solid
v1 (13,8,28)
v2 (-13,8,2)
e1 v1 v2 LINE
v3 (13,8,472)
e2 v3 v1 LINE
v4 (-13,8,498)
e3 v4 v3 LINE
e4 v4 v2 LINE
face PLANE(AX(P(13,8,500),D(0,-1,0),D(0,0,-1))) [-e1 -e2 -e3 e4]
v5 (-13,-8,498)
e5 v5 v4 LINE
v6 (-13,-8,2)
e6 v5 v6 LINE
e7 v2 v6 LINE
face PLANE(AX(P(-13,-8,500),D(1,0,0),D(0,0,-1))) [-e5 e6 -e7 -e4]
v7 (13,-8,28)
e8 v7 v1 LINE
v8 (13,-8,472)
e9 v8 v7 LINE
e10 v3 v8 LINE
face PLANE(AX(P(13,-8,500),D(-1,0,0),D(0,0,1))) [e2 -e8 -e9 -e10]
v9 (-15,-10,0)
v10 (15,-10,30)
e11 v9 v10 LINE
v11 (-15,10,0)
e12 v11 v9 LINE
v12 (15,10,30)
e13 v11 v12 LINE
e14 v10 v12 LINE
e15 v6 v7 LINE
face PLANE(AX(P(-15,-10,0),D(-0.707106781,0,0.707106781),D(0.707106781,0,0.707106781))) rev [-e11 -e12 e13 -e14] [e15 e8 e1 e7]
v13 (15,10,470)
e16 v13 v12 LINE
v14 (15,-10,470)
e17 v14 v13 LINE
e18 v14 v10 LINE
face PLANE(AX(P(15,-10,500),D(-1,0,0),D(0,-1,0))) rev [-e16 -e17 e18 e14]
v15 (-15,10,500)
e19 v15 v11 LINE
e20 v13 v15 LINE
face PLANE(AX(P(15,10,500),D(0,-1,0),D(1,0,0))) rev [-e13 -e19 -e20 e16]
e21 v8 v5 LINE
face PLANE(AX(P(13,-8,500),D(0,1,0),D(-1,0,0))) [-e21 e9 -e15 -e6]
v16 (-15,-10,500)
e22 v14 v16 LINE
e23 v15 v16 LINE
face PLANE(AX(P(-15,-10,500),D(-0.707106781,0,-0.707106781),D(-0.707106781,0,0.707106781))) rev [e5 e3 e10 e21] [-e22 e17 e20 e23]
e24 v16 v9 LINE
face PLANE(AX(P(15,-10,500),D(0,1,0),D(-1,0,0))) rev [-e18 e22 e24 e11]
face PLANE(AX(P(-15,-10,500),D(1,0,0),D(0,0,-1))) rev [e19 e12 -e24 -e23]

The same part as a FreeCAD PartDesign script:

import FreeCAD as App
import Part
import Sketcher

doc = App.newDocument("Part")
body = doc.addObject("PartDesign::Body", "Body")

sketch1 = doc.addObject("Sketcher::SketchObject", "Sketch")
body.addObject(sketch1)
sketch1.AttachmentSupport = (doc.XY_Plane, [""])
sketch1.MapMode = "FlatFace"
sketch1.addGeometry(Part.LineSegment(App.Vector(-15, 10, 0), App.Vector(-15, -10, 0)), False)
sketch1.addGeometry(Part.LineSegment(App.Vector(-15, -10, 0), App.Vector(15, -10, 0)), False)
sketch1.addGeometry(Part.LineSegment(App.Vector(15, -10, 0), App.Vector(15, 10, 0)), False)
sketch1.addGeometry(Part.LineSegment(App.Vector(15, 10, 0), App.Vector(-15, 10, 0)), False)
sketch1.addGeometry(Part.LineSegment(App.Vector(13, -8, 0), App.Vector(-13, -8, 0)), False)
sketch1.addGeometry(Part.LineSegment(App.Vector(-13, -8, 0), App.Vector(-13, 8, 0)), False)
sketch1.addGeometry(Part.LineSegment(App.Vector(-13, 8, 0), App.Vector(13, 8, 0)), False)
sketch1.addGeometry(Part.LineSegment(App.Vector(13, 8, 0), App.Vector(13, -8, 0)), False)
sketch1.addConstraint(Sketcher.Constraint("Coincident", 0, 2, 1, 1))
sketch1.addConstraint(Sketcher.Constraint("Coincident", 1, 2, 2, 1))
sketch1.addConstraint(Sketcher.Constraint("Coincident", 2, 2, 3, 1))
sketch1.addConstraint(Sketcher.Constraint("Coincident", 3, 2, 0, 1))
sketch1.addConstraint(Sketcher.Constraint("Coincident", 4, 2, 5, 1))
sketch1.addConstraint(Sketcher.Constraint("Coincident", 5, 2, 6, 1))
sketch1.addConstraint(Sketcher.Constraint("Coincident", 6, 2, 7, 1))
sketch1.addConstraint(Sketcher.Constraint("Coincident", 7, 2, 4, 1))
sketch1.addConstraint(Sketcher.Constraint("Vertical", 0))
sketch1.addConstraint(Sketcher.Constraint("Horizontal", 1))
sketch1.addConstraint(Sketcher.Constraint("Vertical", 2))
sketch1.addConstraint(Sketcher.Constraint("Horizontal", 3))
sketch1.addConstraint(Sketcher.Constraint("Horizontal", 4))
sketch1.addConstraint(Sketcher.Constraint("Vertical", 5))
sketch1.addConstraint(Sketcher.Constraint("Horizontal", 6))
sketch1.addConstraint(Sketcher.Constraint("Vertical", 7))
sketch1.addConstraint(Sketcher.Constraint("Symmetric", 0, 2, 2, 2, -1, 1))
sketch1.addConstraint(Sketcher.Constraint("Symmetric", 4, 2, 6, 2, -1, 1))
sketch1.addConstraint(Sketcher.Constraint("DistanceX", 1, 1, 1, 2, 30.0))
sketch1.addConstraint(Sketcher.Constraint("DistanceX", 4, 2, 4, 1, 26.0))
sketch1.addConstraint(Sketcher.Constraint("DistanceY", 0, 2, 0, 1, 20.0))
sketch1.addConstraint(Sketcher.Constraint("DistanceY", 5, 1, 5, 2, 16.0))
pad1 = doc.addObject("PartDesign::Pad", "Pad")
body.addObject(pad1)
pad1.Profile = sketch1
pad1.Length = 500

sketch2 = doc.addObject("Sketcher::SketchObject", "Sketch001")
body.addObject(sketch2)
sketch2.AttachmentSupport = (doc.XZ_Plane, [""])
sketch2.MapMode = "FlatFace"
sketch2.AttachmentOffset = App.Placement(App.Vector(0, 0, -10), App.Rotation())
sketch2.addGeometry(Part.LineSegment(App.Vector(-15, 0, 0), App.Vector(15, 30, 0)), False)
sketch2.addGeometry(Part.LineSegment(App.Vector(15, 30, 0), App.Vector(15, 0, 0)), False)
sketch2.addGeometry(Part.LineSegment(App.Vector(15, 0, 0), App.Vector(-15, 0, 0)), False)
sketch2.addGeometry(Part.LineSegment(App.Vector(15, 470, 0), App.Vector(-15, 500, 0)), False)
sketch2.addGeometry(Part.LineSegment(App.Vector(-15, 500, 0), App.Vector(15, 500, 0)), False)
sketch2.addGeometry(Part.LineSegment(App.Vector(15, 500, 0), App.Vector(15, 470, 0)), False)
sketch2.addConstraint(Sketcher.Constraint("Coincident", 0, 2, 1, 1))
sketch2.addConstraint(Sketcher.Constraint("Coincident", 1, 2, 2, 1))
sketch2.addConstraint(Sketcher.Constraint("Coincident", 2, 2, 0, 1))
sketch2.addConstraint(Sketcher.Constraint("Coincident", 3, 2, 4, 1))
sketch2.addConstraint(Sketcher.Constraint("Coincident", 4, 2, 5, 1))
sketch2.addConstraint(Sketcher.Constraint("Coincident", 5, 2, 3, 1))
sketch2.addConstraint(Sketcher.Constraint("Vertical", 1))
sketch2.addConstraint(Sketcher.Constraint("Horizontal", 2))
sketch2.addConstraint(Sketcher.Constraint("Horizontal", 4))
sketch2.addConstraint(Sketcher.Constraint("Vertical", 5))
sketch2.addConstraint(Sketcher.Constraint("Symmetric", 1, 2, 2, 2, -1, 1))
sketch2.addConstraint(Sketcher.Constraint("Perpendicular", 0, 3))
sketch2.addConstraint(Sketcher.Constraint("Vertical", 2, 2, 3, 2))
sketch2.addConstraint(Sketcher.Constraint("Vertical", 1, 2, 4, 2))
sketch2.addConstraint(Sketcher.Constraint("Equal", 4, 1))
sketch2.addConstraint(Sketcher.Constraint("DistanceX", 2, 2, 2, 1, 30.0))
sketch2.addConstraint(Sketcher.Constraint("DistanceY", -1, 1, 3, 2, 500.0))
pocket1 = doc.addObject("PartDesign::Pocket", "Pocket")
body.addObject(pocket1)
pocket1.Profile = sketch2
pocket1.Type = "ThroughAll"
pocket1.Reversed = True

doc.recompute()
